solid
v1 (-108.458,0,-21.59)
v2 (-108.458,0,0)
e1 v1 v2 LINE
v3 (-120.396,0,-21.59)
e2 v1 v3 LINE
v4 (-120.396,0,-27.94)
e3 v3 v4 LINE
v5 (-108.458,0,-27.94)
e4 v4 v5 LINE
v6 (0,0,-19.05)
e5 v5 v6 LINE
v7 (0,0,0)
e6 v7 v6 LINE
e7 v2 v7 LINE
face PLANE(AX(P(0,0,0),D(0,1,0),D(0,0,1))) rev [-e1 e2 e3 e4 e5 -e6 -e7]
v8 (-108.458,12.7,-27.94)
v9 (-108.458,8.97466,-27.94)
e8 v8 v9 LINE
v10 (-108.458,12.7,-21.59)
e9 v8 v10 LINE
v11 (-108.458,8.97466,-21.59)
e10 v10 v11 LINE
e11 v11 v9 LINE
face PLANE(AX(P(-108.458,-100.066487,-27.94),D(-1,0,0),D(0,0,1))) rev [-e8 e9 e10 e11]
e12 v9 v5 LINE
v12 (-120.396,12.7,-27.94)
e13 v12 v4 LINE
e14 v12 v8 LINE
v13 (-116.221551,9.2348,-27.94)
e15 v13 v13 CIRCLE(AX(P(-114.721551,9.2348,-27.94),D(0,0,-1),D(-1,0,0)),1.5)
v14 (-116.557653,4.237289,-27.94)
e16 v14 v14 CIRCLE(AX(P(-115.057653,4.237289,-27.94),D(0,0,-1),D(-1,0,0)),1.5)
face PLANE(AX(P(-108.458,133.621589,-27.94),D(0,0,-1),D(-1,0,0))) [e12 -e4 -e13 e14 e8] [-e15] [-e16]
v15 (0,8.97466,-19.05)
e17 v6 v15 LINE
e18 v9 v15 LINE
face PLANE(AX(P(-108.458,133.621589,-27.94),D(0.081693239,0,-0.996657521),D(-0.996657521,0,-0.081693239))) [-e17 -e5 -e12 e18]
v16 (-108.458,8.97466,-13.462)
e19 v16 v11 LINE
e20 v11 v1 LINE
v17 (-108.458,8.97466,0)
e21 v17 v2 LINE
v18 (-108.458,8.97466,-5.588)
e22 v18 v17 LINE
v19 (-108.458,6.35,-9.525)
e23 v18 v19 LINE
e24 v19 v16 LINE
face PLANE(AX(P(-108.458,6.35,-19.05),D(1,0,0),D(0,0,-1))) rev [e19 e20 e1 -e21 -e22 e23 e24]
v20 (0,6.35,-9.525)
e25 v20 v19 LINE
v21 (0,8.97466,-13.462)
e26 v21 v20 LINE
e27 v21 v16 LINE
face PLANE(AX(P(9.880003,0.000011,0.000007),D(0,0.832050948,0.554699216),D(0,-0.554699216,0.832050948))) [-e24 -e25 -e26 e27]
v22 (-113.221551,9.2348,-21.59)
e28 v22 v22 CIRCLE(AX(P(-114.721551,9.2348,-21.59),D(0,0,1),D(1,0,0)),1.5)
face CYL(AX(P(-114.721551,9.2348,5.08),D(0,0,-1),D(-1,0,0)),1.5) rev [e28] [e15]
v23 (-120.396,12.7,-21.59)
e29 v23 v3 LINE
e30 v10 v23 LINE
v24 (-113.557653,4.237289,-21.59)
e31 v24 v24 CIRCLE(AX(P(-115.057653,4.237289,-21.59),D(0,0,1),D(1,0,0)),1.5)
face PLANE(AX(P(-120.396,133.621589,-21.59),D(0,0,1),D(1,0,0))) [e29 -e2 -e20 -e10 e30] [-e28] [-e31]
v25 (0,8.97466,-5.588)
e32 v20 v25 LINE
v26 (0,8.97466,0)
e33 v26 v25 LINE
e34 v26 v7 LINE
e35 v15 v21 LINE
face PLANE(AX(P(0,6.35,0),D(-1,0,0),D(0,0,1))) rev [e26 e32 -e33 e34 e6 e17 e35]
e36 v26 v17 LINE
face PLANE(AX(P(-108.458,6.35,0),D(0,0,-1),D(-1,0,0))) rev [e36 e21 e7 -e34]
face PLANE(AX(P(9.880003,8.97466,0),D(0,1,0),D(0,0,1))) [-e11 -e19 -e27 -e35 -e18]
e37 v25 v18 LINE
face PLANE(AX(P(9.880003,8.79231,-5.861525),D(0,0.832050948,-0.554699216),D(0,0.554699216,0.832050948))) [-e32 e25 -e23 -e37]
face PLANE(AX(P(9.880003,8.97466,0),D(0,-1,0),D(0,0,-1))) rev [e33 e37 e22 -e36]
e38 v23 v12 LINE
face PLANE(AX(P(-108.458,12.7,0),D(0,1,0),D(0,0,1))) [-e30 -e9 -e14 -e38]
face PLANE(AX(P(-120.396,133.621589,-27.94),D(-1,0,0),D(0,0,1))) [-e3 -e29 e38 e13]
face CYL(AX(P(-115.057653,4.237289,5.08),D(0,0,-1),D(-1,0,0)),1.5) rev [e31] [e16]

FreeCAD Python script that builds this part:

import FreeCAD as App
import Part
import Sketcher
Q = App.Units.Quantity

doc = App.newDocument("Part")
body = doc.addObject("PartDesign::Body", "Body")

# Sketch on XZ plane
sketch1 = body.newObject("Sketcher::SketchObject", "Sketch")
sketch1.AttachmentSupport = (doc.getObject("XZ_Plane"), [""])
sketch1.MapMode = "FlatFace"
sketch1.addGeometry([
    Part.LineSegment(App.Vector(0, 0, 0), App.Vector(0, -13, 0)),  # 0
    Part.LineSegment(App.Vector(0, -13, 0), App.Vector(12, -13, 0)),  # 1
    Part.LineSegment(App.Vector(12, -13, 0), App.Vector(12, -19, 0)),  # 2
    Part.LineSegment(App.Vector(12, -19, 0), App.Vector(-108, -19, 0)),  # 3
    Part.LineSegment(App.Vector(-108, -19, 0), App.Vector(-108, 0, 0)),  # 4
    Part.LineSegment(App.Vector(-108, 0, 0), App.Vector(0, 0, 0)),  # 5
], False)
sketch1.addConstraint([
    Sketcher.Constraint("Coincident", 0, 2, 1, 1),
    Sketcher.Constraint("Coincident", 1, 2, 2, 1),
    Sketcher.Constraint("Coincident", 2, 2, 3, 1),
    Sketcher.Constraint("Coincident", 3, 2, 4, 1),
    Sketcher.Constraint("Coincident", 4, 2, 5, 1),
    Sketcher.Constraint("Coincident", 5, 2, 0, 1),
    Sketcher.Constraint("Vertical", 0),
    Sketcher.Constraint("Horizontal", 1),
    Sketcher.Constraint("Vertical", 2),
    Sketcher.Constraint("Horizontal", 3),
    Sketcher.Constraint("Vertical", 4),
    Sketcher.Constraint("Horizontal", 5),
    Sketcher.Constraint("Coincident", 5, 2, -1, 1),
    Sketcher.Constraint("DistanceY", 0, 2, 0, 1, Q("0.5 in")),
    Sketcher.Constraint("DistanceX", 1, 1, 1, 2, Q("0.47 in")),
    Sketcher.Constraint("DistanceX", 3, 2, 3, 1, Q("4.74 in")),
    Sketcher.Constraint("DistanceY", 2, 2, 2, 1, Q("0.25 in")),
])
pad1 = body.newObject("PartDesign::Pad", "Pad")
pad1.Profile = sketch1
pad1.Length = Q("0.25 in")
pad1.Reversed = True

# Sketch on YZ plane
sketch2 = body.newObject("Sketcher::SketchObject", "Sketch001")
sketch2.AttachmentSupport = (doc.getObject("YZ_Plane"), [""])
sketch2.MapMode = "FlatFace"
sketch2.AttachmentOffset = App.Placement(App.Vector(0, 0, -4.27 * 25.4), App.Rotation())
sketch2.addGeometry([
    Part.LineSegment(App.Vector(6.3, -5.6, 0), App.Vector(6.3, 0, 0)),  # 0
    Part.LineSegment(App.Vector(6.3, 0, 0), App.Vector(9, 0, 0)),  # 1
    Part.LineSegment(App.Vector(9, 0, 0), App.Vector(9, -5.6, 0)),  # 2
    Part.LineSegment(App.Vector(9, -5.6, 0), App.Vector(6.3, -9.5, 0)),  # 3
    Part.LineSegment(App.Vector(6.3, -9.5, 0), App.Vector(6.3, -5.6, 0)),  # 4
    Part.LineSegment(App.Vector(9, -19.1, 0), App.Vector(6.3, -19.1, 0)),  # 5
    Part.LineSegment(App.Vector(6.3, -19.1, 0), App.Vector(6.3, -13.5, 0)),  # 6
    Part.LineSegment(App.Vector(6.3, -13.5, 0), App.Vector(6.3, -9.5, 0)),  # 7
    Part.LineSegment(App.Vector(6.3, -9.5, 0), App.Vector(9, -13.5, 0)),  # 8
    Part.LineSegment(App.Vector(9, -13.5, 0), App.Vector(9, -19.1, 0)),  # 9
], False)
sketch2.addConstraint([
    Sketcher.Constraint("Coincident", 0, 2, 1, 1),
    Sketcher.Constraint("Coincident", 1, 2, 2, 1),
    Sketcher.Constraint("Coincident", 2, 2, 3, 1),
    Sketcher.Constraint("Coincident", 3, 2, 4, 1),
    Sketcher.Constraint("Coincident", 4, 2, 0, 1),
    Sketcher.Constraint("Coincident", 5, 2, 6, 1),
    Sketcher.Constraint("Coincident", 6, 2, 7, 1),
    Sketcher.Constraint("Coincident", 7, 2, 8, 1),
    Sketcher.Constraint("Coincident", 8, 2, 9, 1),
    Sketcher.Constraint("Coincident", 9, 2, 5, 1),
    Sketcher.Constraint("Vertical", 0),
    Sketcher.Constraint("Horizontal", 1),
    Sketcher.Constraint("Vertical", 2),
    Sketcher.Constraint("Vertical", 4),
    Sketcher.Constraint("Horizontal", 5),
    Sketcher.Constraint("Vertical", 6),
    Sketcher.Constraint("Vertical", 7),
    Sketcher.Constraint("Vertical", 9),
    Sketcher.Constraint("Coincident", 7, 2, 3, 2),
    Sketcher.Constraint("PointOnObject", 0, 2, -1),
    Sketcher.Constraint("Horizontal", 2, 2, 4, 2),
    Sketcher.Constraint("Horizontal", 6, 2, 8, 2),
    Sketcher.Constraint("Vertical", 2, 2, 8, 2),
    Sketcher.Constraint("Equal", 2, 6),
    Sketcher.Constraint("Equal", 4, 7),
    Sketcher.Constraint("DistanceY", 0, 1, 0, 2, Q("0.22 in")),
    Sketcher.Constraint("DistanceY", 4, 1, 4, 2, Q("0.155 in")),
    Sketcher.Constraint("DistanceX", -1, 1, 0, 2, Q("0.25 in")),
    Sketcher.Constraint("Angle", 3, Q("-123.69 deg")),
])
pad2 = body.newObject("PartDesign::Pad", "Pad001")
pad2.Profile = sketch2
pad2.Length = Q("4.27 in")

# Sketch on XZ plane
sketch3 = body.newObject("Sketcher::SketchObject", "Sketch002")
sketch3.AttachmentSupport = (doc.getObject("XZ_Plane"), [""])
sketch3.MapMode = "FlatFace"
sketch3.AttachmentOffset = App.Placement(App.Vector(0, 0, -0.25 * 25.4), App.Rotation())
sketch3.addGeometry([
    Part.LineSegment(App.Vector(0, -19, 0), App.Vector(0, -13, 0)),
    Part.LineSegment(App.Vector(0, -13, 0), App.Vector(12, -13, 0)),
    Part.LineSegment(App.Vector(12, -13, 0), App.Vector(12, -19, 0)),
    Part.LineSegment(App.Vector(12, -19, 0), App.Vector(0, -19, 0)),
], False)
sketch3.addConstraint([
    Sketcher.Constraint("Coincident", 0, 2, 1, 1),
    Sketcher.Constraint("Coincident", 1, 2, 2, 1),
    Sketcher.Constraint("Coincident", 2, 2, 3, 1),
    Sketcher.Constraint("Coincident", 3, 2, 0, 1),
    Sketcher.Constraint("Vertical", 0),
    Sketcher.Constraint("Horizontal", 1),
    Sketcher.Constraint("Vertical", 2),
    Sketcher.Constraint("Horizontal", 3),
    Sketcher.Constraint("PointOnObject", 0, 2, -2),
    Sketcher.Constraint("DistanceX", 1, 1, 1, 2, Q("0.47 in")),
    Sketcher.Constraint("DistanceY", 0, 1, 0, 2, Q("0.25 in")),
    Sketcher.Constraint("DistanceY", 0, 2, -1, 1, Q("0.5 in")),
])
pad3 = body.newObject("PartDesign::Pad", "Pad002")
pad3.Profile = sketch3
pad3.Length = Q("0.25 in")
pad3.Reversed = True

# Sketch on XY plane
sketch4 = body.newObject("Sketcher::SketchObject", "Sketch003")
sketch4.AttachmentSupport = (doc.getObject("XY_Plane"), [""])
sketch4.MapMode = "FlatFace"
sketch4.AttachmentOffset = App.Placement(App.Vector(0, 0, -0.75 * 25.4), App.Rotation())
sketch4.addGeometry([
    Part.Circle(App.Vector(6.6, 4.2, 0), App.Vector(0, 0, 1), 1.5),
    Part.Circle(App.Vector(6.3, 9.2, 0), App.Vector(0, 0, 1), 1.5),
], False)
sketch4.addConstraint([
    Sketcher.Constraint("Equal", 0, 1),
    Sketcher.Constraint("Diameter", 0, 3.0),
    Sketcher.Constraint("DistanceY", -1, 1, 1, 3, 9.2348),
    Sketcher.Constraint("DistanceY", -1, 1, 0, 3, 4.237289),
    Sketcher.Constraint("DistanceX", -1, 1, 1, 3, 6.263551),
    Sketcher.Constraint("DistanceX", -1, 1, 0, 3, 6.599653),
])
pocket1 = body.newObject("PartDesign::Pocket", "Pocket")
pocket1.Profile = sketch4
pocket1.Length = Q("0.25 in")
pocket1.Reversed = True
doc.recompute()

datumplane = body.newObject("PartDesign::Plane", "DatumPlane")
datumplane.AttachmentSupport = (doc.getObject("YZ_Plane"), [""])
datumplane.MapMode = "FlatFace"
datumplane.AttachmentOffset = App.Placement(App.Vector(0, 0, -2.135 * 25.4), App.Rotation())
mirrored = body.newObject("PartDesign::Mirrored", "Mirrored")
mirrored.Originals = [pad1, pad3, pocket1]
mirrored.MirrorPlane = (datumplane, [""])
body.Tip = mirrored

# Sketch on XY plane
sketch5 = body.newObject("Sketcher::SketchObject", "Sketch004")
sketch5.AttachmentSupport = (doc.getObject("XY_Plane"), [""])
sketch5.MapMode = "FlatFace"
sketch5.AttachmentOffset = App.Placement(App.Vector(0, 0, -0.75 * 25.4), App.Rotation())
sketch5.addGeometry([
    Part.LineSegment(App.Vector(24, 13, 0), App.Vector(24, -31, 0)),
    Part.LineSegment(App.Vector(24, -31, 0), App.Vector(0, -31, 0)),
    Part.LineSegment(App.Vector(0, -31, 0), App.Vector(0, 13, 0)),
    Part.LineSegment(App.Vector(0, 13, 0), App.Vector(24, 13, 0)),
], False)
sketch5.addConstraint([
    Sketcher.Constraint("Coincident", 0, 2, 1, 1),
    Sketcher.Constraint("Coincident", 1, 2, 2, 1),
    Sketcher.Constraint("Coincident", 2, 2, 3, 1),
    Sketcher.Constraint("Coincident", 3, 2, 0, 1),
    Sketcher.Constraint("Vertical", 0),
    Sketcher.Constraint("Horizontal", 1),
    Sketcher.Constraint("Vertical", 2),
    Sketcher.Constraint("Horizontal", 3),
    Sketcher.Constraint("PointOnObject", 1, 2, -2),
    Sketcher.Constraint("DistanceY", -1, 1, 2, 2, Q("0.5 in")),
    Sketcher.Constraint("DistanceX", 1, 2, 1, 1, 24.200861),
    Sketcher.Constraint("DistanceY", 0, 2, 0, 1, 43.914531),
])
pocket2 = body.newObject("PartDesign::Pocket", "Pocket001")
pocket2.Profile = sketch5
pocket2.Length = Q("0.25 in")
pocket2.Reversed = True

# Sketch on XZ plane
sketch6 = body.newObject("Sketcher::SketchObject", "Sketch005")
sketch6.AttachmentSupport = (doc.getObject("XZ_Plane"), [""])
sketch6.MapMode = "FlatFace"
sketch6.addGeometry([
    Part.LineSegment(App.Vector(-108.5, -21.6, 0), App.Vector(-120.4, -21.6, 0)),  # 0
    Part.LineSegment(App.Vector(-120.4, -21.6, 0), App.Vector(-120.4, -27.9, 0)),  # 1
    Part.LineSegment(App.Vector(-120.4, -27.9, 0), App.Vector(-108.5, -27.9, 0)),  # 2
    Part.LineSegment(App.Vector(-108.5, -27.9, 0), App.Vector(0, -19.1, 0)),  # 3
    Part.LineSegment(App.Vector(0, -19.1, 0), App.Vector(0, -16.7, 0)),  # 4
    Part.LineSegment(App.Vector(0, -16.7, 0), App.Vector(-108.5, -16.7, 0)),  # 5
    Part.LineSegment(App.Vector(-108.5, -16.7, 0), App.Vector(-108.5, -21.6, 0)),  # 6
], False)
sketch6.addConstraint([
    Sketcher.Constraint("Coincident", 0, 2, 1, 1),
    Sketcher.Constraint("Coincident", 1, 2, 2, 1),
    Sketcher.Constraint("Coincident", 2, 2, 3, 1),
    Sketcher.Constraint("Coincident", 3, 2, 4, 1),
    Sketcher.Constraint("Coincident", 4, 2, 5, 1),
    Sketcher.Constraint("Coincident", 5, 2, 6, 1),
    Sketcher.Constraint("Coincident", 6, 2, 0, 1),
    Sketcher.Constraint("Horizontal", 0),
    Sketcher.Constraint("Vertical", 1),
    Sketcher.Constraint("Horizontal", 2),
    Sketcher.Constraint("Vertical", 4),
    Sketcher.Constraint("Horizontal", 5),
    Sketcher.Constraint("Vertical", 6),
    Sketcher.Constraint("PointOnObject", 3, 2, -2),
    Sketcher.Constraint("Vertical", 2, 2, 5, 2),
    Sketcher.Constraint("DistanceX", 0, 2, 0, 1, Q("0.47 in")),
    Sketcher.Constraint("DistanceX", 5, 2, 5, 1, Q("4.27 in")),
    Sketcher.Constraint("DistanceY", 1, 2, 1, 1, Q("0.25 in")),
    Sketcher.Constraint("DistanceY", 1, 2, -1, 1, Q("1.1 in")),
    Sketcher.Constraint("DistanceY", 0, 2, 3, 2, Q("0.1 in")),
    Sketcher.Constraint("DistanceY", 4, 1, 4, 2, 2.372057),
])
pad4 = body.newObject("PartDesign::Pad", "Pad003")
pad4.Profile = sketch6
pad4.Length = Q("0.5 in")
pad4.Reversed = True

# Sketch on XY plane
sketch7 = body.newObject("Sketcher::SketchObject", "Sketch006")
sketch7.AttachmentSupport = (doc.getObject("XY_Plane"), [""])
sketch7.MapMode = "FlatFace"
sketch7.AttachmentOffset = App.Placement(App.Vector(0, 0, -1.1 * 25.4), App.Rotation())
sketch7.addGeometry([
    Part.Circle(App.Vector(-114.7, 9.2, 0), App.Vector(0, 0, 1), 1.5),
    Part.Circle(App.Vector(-115.1, 4.2, 0), App.Vector(0, 0, 1), 1.5),
], False)
sketch7.addConstraint([
    Sketcher.Constraint("Equal", 0, 1),
    Sketcher.Constraint("Diameter", 0, 3.0),
    Sketcher.Constraint("DistanceY", -1, 1, 0, 3, 9.2348),
    Sketcher.Constraint("DistanceX", 0, 3, -1, 1, 114.721551),
    Sketcher.Constraint("DistanceY", -1, 1, 1, 3, 4.237289),
    Sketcher.Constraint("DistanceX", 1, 3, -1, 1, 115.057653),
])
pocket3 = body.newObject("PartDesign::Pocket", "Pocket002")
pocket3.Profile = sketch7
pocket3.Length = Q("1.3 in")
pocket3.Reversed = True

# Sketch on XZ plane
sketch8 = body.newObject("Sketcher::SketchObject", "Sketch007")
sketch8.AttachmentSupport = (doc.getObject("XZ_Plane"), [""])
sketch8.MapMode = "FlatFace"
sketch8.AttachmentOffset = App.Placement(App.Vector(0, 0, -0.5 * 25.4), App.Rotation())
sketch8.addGeometry([
    Part.LineSegment(App.Vector(-120, -19, 0), App.Vector(-120, -13, 0)),
    Part.LineSegment(App.Vector(-120, -13, 0), App.Vector(-108, -13, 0)),
    Part.LineSegment(App.Vector(-108, -13, 0), App.Vector(-108, -19, 0)),
    Part.LineSegment(App.Vector(-108, -19, 0), App.Vector(-120, -19, 0)),
], False)
sketch8.addConstraint([
    Sketcher.Constraint("Coincident", 0, 2, 1, 1),
    Sketcher.Constraint("Coincident", 1, 2, 2, 1),
    Sketcher.Constraint("Coincident", 2, 2, 3, 1),
    Sketcher.Constraint("Coincident", 3, 2, 0, 1),
    Sketcher.Constraint("Vertical", 0),
    Sketcher.Constraint("Horizontal", 1),
    Sketcher.Constraint("Vertical", 2),
    Sketcher.Constraint("Horizontal", 3),
    Sketcher.Constraint("DistanceX", 1, 1, 1, 2, Q("0.47 in")),
    Sketcher.Constraint("DistanceY", 0, 1, 0, 2, Q("0.25 in")),
    Sketcher.Constraint("DistanceY", 0, 2, -1, 1, Q("0.5 in")),
    Sketcher.Constraint("DistanceX", 0, 2, -1, 1, Q("4.74 in")),
])
pocket4 = body.newObject("PartDesign::Pocket", "Pocket003")
pocket4.Profile = sketch8
pocket4.Length = Q("1.3 in")
pocket4.Reversed = True

# Sketch on XZ plane
sketch9 = body.newObject("Sketcher::SketchObject", "Sketch008")
sketch9.AttachmentSupport = (doc.getObject("XZ_Plane"), [""])
sketch9.MapMode = "FlatFace"
sketch9.AttachmentOffset = App.Placement(App.Vector(0, 0, -0.5 * 25.4), App.Rotation())
sketch9.addGeometry([
    Part.LineSegment(App.Vector(-108.5, -27.9, 0), App.Vector(-108.5, -16.7, 0)),
    Part.LineSegment(App.Vector(-108.5, -16.7, 0), App.Vector(0, -16.7, 0)),
    Part.LineSegment(App.Vector(0, -16.7, 0), App.Vector(0, -19.1, 0)),
    Part.LineSegment(App.Vector(0, -19.1, 0), App.Vector(-108.5, -27.9, 0)),
], False)
sketch9.addConstraint([
    Sketcher.Constraint("Coincident", 0, 2, 1, 1),
    Sketcher.Constraint("Coincident", 1, 2, 2, 1),
    Sketcher.Constraint("Coincident", 2, 2, 3, 1),
    Sketcher.Constraint("Coincident", 3, 2, 0, 1),
    Sketcher.Constraint("Vertical", 0),
    Sketcher.Constraint("Horizontal", 1),
    Sketcher.Constraint("Vertical", 2),
    Sketcher.Constraint("PointOnObject", 1, 2, -2),
    Sketcher.Constraint("DistanceX", 1, 1, 1, 2, Q("4.27 in")),
    Sketcher.Constraint("DistanceY", 3, 2, -1, 1, Q("1.1 in")),
    Sketcher.Constraint("DistanceY", 2, 2, -1, 1, Q("0.75 in")),
    Sketcher.Constraint("DistanceY", 0, 1, 0, 2, 11.262057),
])
pocket5 = body.newObject("PartDesign::Pocket", "Pocket004")
pocket5.Profile = sketch9
pocket5.Length = 3.72534
pocket5.Reversed = True

doc.recompute()
